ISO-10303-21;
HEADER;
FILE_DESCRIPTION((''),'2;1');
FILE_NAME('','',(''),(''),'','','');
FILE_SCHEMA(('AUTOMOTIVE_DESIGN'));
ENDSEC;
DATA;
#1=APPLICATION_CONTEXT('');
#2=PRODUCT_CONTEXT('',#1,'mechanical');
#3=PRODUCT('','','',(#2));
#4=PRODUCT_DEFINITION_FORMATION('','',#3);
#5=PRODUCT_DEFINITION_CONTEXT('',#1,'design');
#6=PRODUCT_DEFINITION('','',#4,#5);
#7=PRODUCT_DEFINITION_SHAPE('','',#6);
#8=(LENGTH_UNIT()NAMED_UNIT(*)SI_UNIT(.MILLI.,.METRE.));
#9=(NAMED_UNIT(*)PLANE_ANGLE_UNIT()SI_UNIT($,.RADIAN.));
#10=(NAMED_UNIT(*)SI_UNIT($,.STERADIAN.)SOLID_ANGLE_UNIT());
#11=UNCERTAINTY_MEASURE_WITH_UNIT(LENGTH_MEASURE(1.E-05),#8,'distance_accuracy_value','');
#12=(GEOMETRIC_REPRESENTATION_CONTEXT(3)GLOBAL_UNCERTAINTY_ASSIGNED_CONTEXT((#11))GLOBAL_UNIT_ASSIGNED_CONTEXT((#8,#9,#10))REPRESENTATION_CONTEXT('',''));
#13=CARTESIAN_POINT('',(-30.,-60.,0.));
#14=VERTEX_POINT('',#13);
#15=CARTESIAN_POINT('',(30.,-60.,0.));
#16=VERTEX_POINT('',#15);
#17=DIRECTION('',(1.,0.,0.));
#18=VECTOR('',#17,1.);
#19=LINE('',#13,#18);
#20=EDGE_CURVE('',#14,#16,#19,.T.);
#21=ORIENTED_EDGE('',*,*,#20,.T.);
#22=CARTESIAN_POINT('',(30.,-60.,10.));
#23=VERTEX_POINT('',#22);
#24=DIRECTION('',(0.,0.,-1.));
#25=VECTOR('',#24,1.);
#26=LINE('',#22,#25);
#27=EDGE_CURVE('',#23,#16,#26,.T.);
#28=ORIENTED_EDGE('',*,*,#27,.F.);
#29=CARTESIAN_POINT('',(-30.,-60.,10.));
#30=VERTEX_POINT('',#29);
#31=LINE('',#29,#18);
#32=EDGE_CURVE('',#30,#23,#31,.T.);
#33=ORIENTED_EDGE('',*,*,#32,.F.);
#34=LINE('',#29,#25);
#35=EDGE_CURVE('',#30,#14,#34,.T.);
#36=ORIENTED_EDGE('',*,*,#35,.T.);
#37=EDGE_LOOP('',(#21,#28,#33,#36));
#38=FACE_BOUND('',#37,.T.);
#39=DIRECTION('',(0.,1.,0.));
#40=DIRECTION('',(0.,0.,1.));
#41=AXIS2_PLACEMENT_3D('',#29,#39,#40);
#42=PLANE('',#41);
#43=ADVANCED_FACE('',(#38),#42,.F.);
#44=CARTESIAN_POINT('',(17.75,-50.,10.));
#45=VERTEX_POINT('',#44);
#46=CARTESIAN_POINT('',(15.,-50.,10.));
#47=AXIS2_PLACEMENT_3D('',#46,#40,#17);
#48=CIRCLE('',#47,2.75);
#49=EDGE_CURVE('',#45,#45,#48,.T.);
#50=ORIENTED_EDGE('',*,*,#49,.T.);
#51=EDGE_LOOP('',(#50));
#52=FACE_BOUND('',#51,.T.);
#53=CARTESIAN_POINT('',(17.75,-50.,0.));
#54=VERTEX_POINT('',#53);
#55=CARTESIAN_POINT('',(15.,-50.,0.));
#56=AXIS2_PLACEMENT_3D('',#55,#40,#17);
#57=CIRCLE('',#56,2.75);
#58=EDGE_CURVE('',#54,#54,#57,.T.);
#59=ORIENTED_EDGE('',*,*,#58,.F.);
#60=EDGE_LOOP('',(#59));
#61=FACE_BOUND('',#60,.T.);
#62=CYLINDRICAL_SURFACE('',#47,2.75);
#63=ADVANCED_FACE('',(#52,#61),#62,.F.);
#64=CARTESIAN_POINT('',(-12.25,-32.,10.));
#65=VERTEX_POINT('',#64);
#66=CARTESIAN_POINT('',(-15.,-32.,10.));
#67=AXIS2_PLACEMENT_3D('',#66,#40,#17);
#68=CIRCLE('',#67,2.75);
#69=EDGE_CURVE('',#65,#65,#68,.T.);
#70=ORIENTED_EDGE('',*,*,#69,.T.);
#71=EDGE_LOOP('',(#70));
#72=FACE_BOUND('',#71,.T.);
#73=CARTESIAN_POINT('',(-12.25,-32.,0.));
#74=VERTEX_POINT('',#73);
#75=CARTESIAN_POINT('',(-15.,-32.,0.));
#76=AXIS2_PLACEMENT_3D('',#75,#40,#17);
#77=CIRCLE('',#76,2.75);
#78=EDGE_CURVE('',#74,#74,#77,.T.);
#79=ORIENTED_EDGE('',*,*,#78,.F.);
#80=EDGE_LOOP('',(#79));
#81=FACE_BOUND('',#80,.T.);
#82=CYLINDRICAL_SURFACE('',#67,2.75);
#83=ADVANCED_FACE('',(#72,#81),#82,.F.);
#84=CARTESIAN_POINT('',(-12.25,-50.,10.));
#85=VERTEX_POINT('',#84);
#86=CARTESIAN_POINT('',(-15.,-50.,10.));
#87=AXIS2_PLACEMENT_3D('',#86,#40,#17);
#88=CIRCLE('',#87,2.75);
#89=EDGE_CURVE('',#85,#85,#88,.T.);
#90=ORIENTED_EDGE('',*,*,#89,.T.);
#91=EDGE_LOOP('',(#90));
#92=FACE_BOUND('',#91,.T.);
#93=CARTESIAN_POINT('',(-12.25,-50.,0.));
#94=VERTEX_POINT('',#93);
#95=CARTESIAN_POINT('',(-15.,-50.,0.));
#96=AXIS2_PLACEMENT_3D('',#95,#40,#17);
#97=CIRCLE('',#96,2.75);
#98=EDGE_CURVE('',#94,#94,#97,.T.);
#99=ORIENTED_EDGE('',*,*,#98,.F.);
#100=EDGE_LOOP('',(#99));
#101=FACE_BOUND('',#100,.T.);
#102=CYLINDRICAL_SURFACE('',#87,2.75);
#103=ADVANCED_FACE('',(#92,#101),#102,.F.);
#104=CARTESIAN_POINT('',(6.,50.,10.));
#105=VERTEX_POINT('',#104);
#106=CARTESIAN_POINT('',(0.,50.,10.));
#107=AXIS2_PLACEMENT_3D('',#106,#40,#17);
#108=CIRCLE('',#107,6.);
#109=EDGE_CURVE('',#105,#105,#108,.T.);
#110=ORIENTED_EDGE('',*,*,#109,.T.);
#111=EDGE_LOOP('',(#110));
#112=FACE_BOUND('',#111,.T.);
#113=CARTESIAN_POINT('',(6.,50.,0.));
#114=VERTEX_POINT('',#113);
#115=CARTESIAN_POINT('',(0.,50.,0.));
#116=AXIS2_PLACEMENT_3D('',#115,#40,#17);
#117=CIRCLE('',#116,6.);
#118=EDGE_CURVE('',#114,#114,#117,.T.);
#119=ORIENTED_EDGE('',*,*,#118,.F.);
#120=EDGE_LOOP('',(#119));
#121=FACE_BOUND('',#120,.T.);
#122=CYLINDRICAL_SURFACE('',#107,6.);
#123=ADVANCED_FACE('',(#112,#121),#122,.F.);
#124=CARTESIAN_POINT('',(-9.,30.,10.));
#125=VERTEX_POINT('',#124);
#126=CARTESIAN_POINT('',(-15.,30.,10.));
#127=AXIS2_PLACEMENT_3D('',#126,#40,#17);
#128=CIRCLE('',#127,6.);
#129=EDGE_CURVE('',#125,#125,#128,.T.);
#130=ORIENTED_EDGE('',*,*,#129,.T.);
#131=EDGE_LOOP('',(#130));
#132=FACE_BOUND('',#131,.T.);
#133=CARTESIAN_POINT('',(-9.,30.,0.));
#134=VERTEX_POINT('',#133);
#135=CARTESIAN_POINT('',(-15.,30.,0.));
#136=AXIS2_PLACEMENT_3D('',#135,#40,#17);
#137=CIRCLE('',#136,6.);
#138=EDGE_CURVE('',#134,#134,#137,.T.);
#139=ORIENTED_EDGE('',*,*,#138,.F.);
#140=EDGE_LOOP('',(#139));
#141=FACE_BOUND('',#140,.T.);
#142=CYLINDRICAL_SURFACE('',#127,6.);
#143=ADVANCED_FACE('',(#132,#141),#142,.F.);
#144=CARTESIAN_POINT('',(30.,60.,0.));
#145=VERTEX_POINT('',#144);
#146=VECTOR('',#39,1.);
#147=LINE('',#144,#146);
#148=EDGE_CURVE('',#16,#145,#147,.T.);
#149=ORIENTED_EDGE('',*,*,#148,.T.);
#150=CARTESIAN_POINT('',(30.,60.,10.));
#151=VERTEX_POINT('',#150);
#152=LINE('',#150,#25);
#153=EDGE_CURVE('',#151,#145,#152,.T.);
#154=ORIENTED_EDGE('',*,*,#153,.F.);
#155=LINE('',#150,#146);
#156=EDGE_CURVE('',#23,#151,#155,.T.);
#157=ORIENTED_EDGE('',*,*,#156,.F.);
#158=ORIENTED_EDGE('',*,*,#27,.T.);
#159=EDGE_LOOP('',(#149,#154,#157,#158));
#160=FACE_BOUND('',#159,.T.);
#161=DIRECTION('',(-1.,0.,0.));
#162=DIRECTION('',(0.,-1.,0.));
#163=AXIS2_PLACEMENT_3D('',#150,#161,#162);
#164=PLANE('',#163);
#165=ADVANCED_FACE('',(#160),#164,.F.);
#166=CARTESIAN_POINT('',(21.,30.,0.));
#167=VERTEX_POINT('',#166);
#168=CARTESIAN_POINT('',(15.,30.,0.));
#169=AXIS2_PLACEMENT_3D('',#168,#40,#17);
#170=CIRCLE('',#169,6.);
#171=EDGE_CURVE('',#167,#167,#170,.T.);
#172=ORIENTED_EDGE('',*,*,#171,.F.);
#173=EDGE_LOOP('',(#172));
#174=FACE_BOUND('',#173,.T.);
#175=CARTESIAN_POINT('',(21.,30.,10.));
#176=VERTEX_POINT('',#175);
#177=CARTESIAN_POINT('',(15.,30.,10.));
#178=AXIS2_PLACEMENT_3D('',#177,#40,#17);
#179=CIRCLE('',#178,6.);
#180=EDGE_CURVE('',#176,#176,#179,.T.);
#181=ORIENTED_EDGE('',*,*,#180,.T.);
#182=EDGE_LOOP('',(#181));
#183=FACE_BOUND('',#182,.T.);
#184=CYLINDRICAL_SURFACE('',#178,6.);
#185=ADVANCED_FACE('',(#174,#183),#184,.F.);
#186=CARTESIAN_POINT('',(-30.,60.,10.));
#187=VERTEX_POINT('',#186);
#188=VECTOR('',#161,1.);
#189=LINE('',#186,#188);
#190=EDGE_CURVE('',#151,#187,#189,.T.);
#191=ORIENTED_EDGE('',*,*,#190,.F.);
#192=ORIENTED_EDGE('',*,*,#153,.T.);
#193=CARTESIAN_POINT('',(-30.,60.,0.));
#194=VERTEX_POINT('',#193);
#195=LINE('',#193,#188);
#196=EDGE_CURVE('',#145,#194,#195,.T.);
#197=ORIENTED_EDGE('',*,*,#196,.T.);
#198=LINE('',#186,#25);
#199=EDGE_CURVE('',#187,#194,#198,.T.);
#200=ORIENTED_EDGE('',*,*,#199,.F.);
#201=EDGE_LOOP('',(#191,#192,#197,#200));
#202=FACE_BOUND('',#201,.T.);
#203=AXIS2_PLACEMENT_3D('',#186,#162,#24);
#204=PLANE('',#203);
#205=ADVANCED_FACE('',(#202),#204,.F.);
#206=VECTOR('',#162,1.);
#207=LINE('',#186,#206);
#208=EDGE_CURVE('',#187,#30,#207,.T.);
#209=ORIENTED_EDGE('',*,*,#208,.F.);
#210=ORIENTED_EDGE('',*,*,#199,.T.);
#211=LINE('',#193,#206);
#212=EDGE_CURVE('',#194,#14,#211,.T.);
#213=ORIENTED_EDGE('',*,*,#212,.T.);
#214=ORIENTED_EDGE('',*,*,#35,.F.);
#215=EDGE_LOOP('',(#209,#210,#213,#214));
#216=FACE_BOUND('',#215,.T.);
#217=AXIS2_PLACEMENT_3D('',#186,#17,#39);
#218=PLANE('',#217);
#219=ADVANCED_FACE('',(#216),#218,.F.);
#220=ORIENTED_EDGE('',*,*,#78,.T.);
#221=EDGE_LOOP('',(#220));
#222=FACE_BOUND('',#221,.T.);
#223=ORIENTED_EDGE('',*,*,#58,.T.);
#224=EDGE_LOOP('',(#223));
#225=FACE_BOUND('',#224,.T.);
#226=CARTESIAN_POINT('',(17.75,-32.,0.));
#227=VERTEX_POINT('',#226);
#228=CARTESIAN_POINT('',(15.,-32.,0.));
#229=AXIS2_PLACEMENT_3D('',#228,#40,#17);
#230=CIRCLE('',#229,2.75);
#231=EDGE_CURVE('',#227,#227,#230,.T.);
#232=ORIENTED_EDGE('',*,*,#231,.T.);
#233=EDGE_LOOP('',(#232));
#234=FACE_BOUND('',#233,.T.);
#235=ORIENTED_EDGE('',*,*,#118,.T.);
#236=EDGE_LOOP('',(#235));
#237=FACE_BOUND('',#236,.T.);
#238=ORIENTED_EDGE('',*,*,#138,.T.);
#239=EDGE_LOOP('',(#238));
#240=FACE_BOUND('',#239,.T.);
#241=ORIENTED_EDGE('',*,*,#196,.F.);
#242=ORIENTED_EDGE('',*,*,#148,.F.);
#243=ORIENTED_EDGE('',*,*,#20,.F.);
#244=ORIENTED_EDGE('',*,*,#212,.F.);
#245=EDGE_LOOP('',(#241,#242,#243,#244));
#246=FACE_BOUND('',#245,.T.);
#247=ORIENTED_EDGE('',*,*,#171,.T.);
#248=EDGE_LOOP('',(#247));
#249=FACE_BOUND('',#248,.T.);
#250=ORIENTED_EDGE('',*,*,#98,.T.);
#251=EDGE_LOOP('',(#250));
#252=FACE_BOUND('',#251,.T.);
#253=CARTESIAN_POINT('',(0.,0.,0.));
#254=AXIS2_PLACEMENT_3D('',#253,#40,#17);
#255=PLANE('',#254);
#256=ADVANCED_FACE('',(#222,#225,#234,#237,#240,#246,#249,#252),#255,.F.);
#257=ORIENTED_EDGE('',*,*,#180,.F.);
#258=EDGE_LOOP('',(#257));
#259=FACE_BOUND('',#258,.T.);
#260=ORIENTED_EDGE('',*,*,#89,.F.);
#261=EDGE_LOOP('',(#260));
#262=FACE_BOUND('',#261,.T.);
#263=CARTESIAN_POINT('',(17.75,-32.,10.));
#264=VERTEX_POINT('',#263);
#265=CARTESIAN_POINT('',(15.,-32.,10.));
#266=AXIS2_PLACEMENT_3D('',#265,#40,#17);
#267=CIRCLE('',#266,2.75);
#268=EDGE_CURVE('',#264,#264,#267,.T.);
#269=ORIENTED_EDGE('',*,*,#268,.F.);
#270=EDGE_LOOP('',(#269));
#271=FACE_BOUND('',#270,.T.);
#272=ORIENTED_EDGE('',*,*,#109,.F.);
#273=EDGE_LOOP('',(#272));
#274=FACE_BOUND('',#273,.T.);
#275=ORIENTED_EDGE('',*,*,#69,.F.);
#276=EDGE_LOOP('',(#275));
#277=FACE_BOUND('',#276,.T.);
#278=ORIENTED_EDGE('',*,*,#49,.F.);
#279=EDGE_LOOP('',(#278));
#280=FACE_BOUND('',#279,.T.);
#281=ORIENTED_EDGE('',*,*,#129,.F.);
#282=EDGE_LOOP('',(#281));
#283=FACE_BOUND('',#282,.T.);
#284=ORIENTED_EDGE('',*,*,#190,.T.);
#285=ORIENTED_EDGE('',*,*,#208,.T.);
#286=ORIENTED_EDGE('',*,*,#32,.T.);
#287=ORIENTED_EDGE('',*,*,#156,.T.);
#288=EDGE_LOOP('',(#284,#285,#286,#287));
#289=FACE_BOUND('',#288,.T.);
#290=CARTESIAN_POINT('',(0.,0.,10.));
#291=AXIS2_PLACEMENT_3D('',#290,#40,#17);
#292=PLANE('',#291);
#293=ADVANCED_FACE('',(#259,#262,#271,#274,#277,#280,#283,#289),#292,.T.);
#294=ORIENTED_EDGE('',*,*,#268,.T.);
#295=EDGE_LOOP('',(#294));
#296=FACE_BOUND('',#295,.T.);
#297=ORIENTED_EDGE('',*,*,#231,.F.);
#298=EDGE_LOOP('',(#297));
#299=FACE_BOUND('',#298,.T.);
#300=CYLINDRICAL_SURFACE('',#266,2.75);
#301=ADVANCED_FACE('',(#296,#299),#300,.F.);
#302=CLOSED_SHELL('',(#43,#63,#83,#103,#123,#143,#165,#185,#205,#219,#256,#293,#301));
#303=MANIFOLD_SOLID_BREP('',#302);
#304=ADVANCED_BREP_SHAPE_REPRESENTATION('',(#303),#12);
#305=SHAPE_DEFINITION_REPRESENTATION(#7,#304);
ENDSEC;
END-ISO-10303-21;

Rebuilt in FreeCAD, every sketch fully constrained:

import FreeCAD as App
import Part
import Sketcher
Q = App.Units.Quantity

doc = App.newDocument("Part")
body = doc.addObject("PartDesign::Body", "Body")

# Sketch on XY plane
sketch1 = doc.addObject("Sketcher::SketchObject", "Sketch")
body.addObject(sketch1)
sketch1.AttachmentSupport = (doc.XY_Plane, [""])
sketch1.MapMode = "FlatFace"
sketch1.addGeometry([
    Part.LineSegment(App.Vector(-30, 60, 0), App.Vector(-30, -60, 0)),
    Part.LineSegment(App.Vector(-30, -60, 0), App.Vector(30, -60, 0)),
    Part.LineSegment(App.Vector(30, -60, 0), App.Vector(30, 60, 0)),
    Part.LineSegment(App.Vector(30, 60, 0), App.Vector(-30, 60, 0)),
], False)
sketch1.addConstraint([
    Sketcher.Constraint("Coincident", 0, 2, 1, 1),
    Sketcher.Constraint("Coincident", 1, 2, 2, 1),
    Sketcher.Constraint("Coincident", 2, 2, 3, 1),
    Sketcher.Constraint("Coincident", 3, 2, 0, 1),
    Sketcher.Constraint("Vertical", 0),
    Sketcher.Constraint("Horizontal", 1),
    Sketcher.Constraint("Vertical", 2),
    Sketcher.Constraint("Horizontal", 3),
    Sketcher.Constraint("Symmetric", 0, 2, 2, 2, -1, 1),
    Sketcher.Constraint("DistanceX", 1, 1, 1, 2, Q("60 mm")),
    Sketcher.Constraint("DistanceY", 0, 2, 0, 1, Q("120 mm")),
])
pad1 = doc.addObject("PartDesign::Pad", "Pad")
body.addObject(pad1)
pad1.Profile = sketch1
pad1.Length = 10

# Sketch on XY plane
sketch2 = doc.addObject("Sketcher::SketchObject", "Sketch001")
body.addObject(sketch2)
sketch2.AttachmentSupport = (doc.XY_Plane, [""])
sketch2.MapMode = "FlatFace"
sketch2.AttachmentOffset = App.Placement(App.Vector(0, 0, 10), App.Rotation())
sketch2.addGeometry([
    Part.Circle(App.Vector(-15, -32, 0), App.Vector(0, 0, 1), 2.8),
    Part.Circle(App.Vector(15, -32, 0), App.Vector(0, 0, 1), 2.8),
    Part.Circle(App.Vector(15, -50, 0), App.Vector(0, 0, 1), 2.8),
    Part.Circle(App.Vector(-15, -50, 0), App.Vector(0, 0, 1), 2.8),
], False)
sketch2.addConstraint([
    Sketcher.Constraint("Equal", 0, 1),
    Sketcher.Constraint("Equal", 1, 2),
    Sketcher.Constraint("Equal", 2, 3),
    Sketcher.Constraint("Symmetric", 0, 3, 1, 3, -2),
    Sketcher.Constraint("Symmetric", 2, 3, 3, 3, -2),
    Sketcher.Constraint("Vertical", 1, 3, 2, 3),
    Sketcher.Constraint("Diameter", 0, Q("5.5 mm")),
    Sketcher.Constraint("DistanceX", 0, 3, -1, 1, Q("15 mm")),
    Sketcher.Constraint("DistanceY", 0, 3, -1, 1, Q("32 mm")),
    Sketcher.Constraint("DistanceY", 2, 3, -1, 1, Q("50 mm")),
])
doc.recompute()
hole = doc.addObject("PartDesign::Hole", "Hole")
body.addObject(hole)
hole.Profile = sketch2
hole.ThreadType = "None"
hole.Diameter = 5.5
hole.DepthType = "Dimension"
hole.Depth = 15
hole.DrillPoint = "Angled"
hole.DrillPointAngle = 118

# Sketch on XY plane
sketch3 = doc.addObject("Sketcher::SketchObject", "Sketch002")
body.addObject(sketch3)
sketch3.AttachmentSupport = (doc.XY_Plane, [""])
sketch3.MapMode = "FlatFace"
sketch3.AttachmentOffset = App.Placement(App.Vector(0, 0, 10), App.Rotation())
sketch3.addGeometry([
    Part.Circle(App.Vector(-15, 30, 0), App.Vector(0, 0, 1), 6),
    Part.Circle(App.Vector(15, 30, 0), App.Vector(0, 0, 1), 6),
    Part.Circle(App.Vector(0, 50, 0), App.Vector(0, 0, 1), 6),
], False)
sketch3.addConstraint([
    Sketcher.Constraint("Equal", 0, 1),
    Sketcher.Constraint("Equal", 1, 2),
    Sketcher.Constraint("Symmetric", 0, 3, 1, 3, -2),
    Sketcher.Constraint("PointOnObject", 2, 3, -2),
    Sketcher.Constraint("Diameter", 0, Q("12 mm")),
    Sketcher.Constraint("DistanceX", 0, 3, -1, 1, Q("15 mm")),
    Sketcher.Constraint("DistanceY", -1, 1, 0, 3, Q("30 mm")),
    Sketcher.Constraint("DistanceY", -1, 1, 2, 3, Q("50 mm")),
])
doc.recompute()
hole2 = doc.addObject("PartDesign::Hole", "Hole001")
body.addObject(hole2)
hole2.Profile = sketch3
hole2.ThreadType = "None"
hole2.Diameter = 12
hole2.DepthType = "Dimension"
hole2.Depth = 15
hole2.DrillPoint = "Angled"
hole2.DrillPointAngle = 118

doc.recompute()
